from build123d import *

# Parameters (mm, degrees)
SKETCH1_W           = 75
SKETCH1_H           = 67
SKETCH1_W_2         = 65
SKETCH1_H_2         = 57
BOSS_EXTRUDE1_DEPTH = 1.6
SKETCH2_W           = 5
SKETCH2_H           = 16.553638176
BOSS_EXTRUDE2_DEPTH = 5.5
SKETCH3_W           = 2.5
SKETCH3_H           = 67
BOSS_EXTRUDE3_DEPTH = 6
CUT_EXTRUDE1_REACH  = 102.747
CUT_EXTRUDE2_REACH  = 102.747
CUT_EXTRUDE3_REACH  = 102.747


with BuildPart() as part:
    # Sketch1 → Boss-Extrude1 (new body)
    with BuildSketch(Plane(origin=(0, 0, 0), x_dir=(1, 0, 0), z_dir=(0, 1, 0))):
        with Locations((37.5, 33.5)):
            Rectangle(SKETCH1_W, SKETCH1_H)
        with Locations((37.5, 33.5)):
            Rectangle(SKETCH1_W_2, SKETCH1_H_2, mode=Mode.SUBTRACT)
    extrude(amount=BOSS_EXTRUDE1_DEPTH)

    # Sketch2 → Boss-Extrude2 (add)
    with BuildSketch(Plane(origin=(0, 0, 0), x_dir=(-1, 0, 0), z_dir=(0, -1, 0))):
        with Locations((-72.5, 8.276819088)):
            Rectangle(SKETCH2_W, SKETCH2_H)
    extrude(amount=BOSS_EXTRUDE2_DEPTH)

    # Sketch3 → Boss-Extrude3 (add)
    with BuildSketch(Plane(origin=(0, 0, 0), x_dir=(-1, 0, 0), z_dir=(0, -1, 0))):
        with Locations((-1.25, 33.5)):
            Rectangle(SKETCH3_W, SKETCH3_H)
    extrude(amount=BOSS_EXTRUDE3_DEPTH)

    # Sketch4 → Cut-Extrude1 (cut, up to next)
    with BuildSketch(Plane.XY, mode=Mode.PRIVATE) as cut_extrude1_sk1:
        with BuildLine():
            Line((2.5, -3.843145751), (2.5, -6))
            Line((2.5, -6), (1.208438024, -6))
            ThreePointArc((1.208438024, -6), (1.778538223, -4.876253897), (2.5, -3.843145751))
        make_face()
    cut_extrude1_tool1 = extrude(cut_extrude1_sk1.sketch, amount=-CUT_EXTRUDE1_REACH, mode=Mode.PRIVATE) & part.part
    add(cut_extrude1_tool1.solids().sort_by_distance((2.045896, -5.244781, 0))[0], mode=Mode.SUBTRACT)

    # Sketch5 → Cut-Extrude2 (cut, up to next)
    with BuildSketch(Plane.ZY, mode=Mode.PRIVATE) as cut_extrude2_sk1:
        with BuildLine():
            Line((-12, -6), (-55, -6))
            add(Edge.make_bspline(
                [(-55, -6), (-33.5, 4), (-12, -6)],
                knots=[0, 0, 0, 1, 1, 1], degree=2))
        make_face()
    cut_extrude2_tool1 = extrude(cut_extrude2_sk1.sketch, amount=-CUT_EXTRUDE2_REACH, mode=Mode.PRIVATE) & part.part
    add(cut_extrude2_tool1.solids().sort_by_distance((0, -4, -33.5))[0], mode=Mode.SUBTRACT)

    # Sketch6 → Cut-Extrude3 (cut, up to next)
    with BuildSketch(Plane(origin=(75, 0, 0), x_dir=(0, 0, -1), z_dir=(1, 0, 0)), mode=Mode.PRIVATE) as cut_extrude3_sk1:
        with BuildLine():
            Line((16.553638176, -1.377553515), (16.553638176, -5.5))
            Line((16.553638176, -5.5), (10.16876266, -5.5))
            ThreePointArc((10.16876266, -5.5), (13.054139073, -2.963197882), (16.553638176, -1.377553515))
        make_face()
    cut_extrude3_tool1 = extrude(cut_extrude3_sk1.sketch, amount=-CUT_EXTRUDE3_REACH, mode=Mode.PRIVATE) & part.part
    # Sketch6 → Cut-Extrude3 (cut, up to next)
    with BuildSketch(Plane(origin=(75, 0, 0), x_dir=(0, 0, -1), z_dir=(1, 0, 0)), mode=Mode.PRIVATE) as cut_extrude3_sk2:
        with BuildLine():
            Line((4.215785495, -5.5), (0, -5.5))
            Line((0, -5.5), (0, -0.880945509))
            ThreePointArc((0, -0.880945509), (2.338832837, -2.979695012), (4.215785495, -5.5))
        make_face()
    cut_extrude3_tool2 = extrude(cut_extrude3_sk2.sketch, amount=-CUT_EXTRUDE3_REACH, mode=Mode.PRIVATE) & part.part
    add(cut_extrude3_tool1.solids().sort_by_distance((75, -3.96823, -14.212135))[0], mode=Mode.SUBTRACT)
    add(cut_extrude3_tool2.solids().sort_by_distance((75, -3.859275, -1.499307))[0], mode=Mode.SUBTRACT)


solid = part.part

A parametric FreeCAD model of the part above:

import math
import FreeCAD as App
import Part
import Sketcher

V = App.Vector
Q = App.Units.Quantity

doc = App.newDocument("Part")
body = doc.addObject("PartDesign::Body", "Body")

# Sketch on XZ plane
sketch1 = body.newObject("Sketcher::SketchObject", "Sketch")
sketch1.AttachmentSupport = (doc.getObject("XZ_Plane"), [""])
sketch1.MapMode = "FlatFace"
sketch1.addGeometry(Part.LineSegment(V(0, -67, 0), V(0, 0, 0)), False)
sketch1.addGeometry(Part.LineSegment(V(0, 0, 0), V(75, 0, 0)), False)
sketch1.addGeometry(Part.LineSegment(V(75, 0, 0), V(75, -67, 0)), False)
sketch1.addGeometry(Part.LineSegment(V(75, -67, 0), V(0, -67, 0)), False)
sketch1.addGeometry(Part.LineSegment(V(70, -5, 0), V(5, -5, 0)), False)
sketch1.addGeometry(Part.LineSegment(V(5, -5, 0), V(5, -62, 0)), False)
sketch1.addGeometry(Part.LineSegment(V(5, -62, 0), V(70, -62, 0)), False)
sketch1.addGeometry(Part.LineSegment(V(70, -62, 0), V(70, -5, 0)), False)
sketch1.addConstraint(Sketcher.Constraint("Coincident", 0, 2, 1, 1))
sketch1.addConstraint(Sketcher.Constraint("Coincident", 1, 2, 2, 1))
sketch1.addConstraint(Sketcher.Constraint("Coincident", 2, 2, 3, 1))
sketch1.addConstraint(Sketcher.Constraint("Coincident", 3, 2, 0, 1))
sketch1.addConstraint(Sketcher.Constraint("Coincident", 4, 2, 5, 1))
sketch1.addConstraint(Sketcher.Constraint("Coincident", 5, 2, 6, 1))
sketch1.addConstraint(Sketcher.Constraint("Coincident", 6, 2, 7, 1))
sketch1.addConstraint(Sketcher.Constraint("Coincident", 7, 2, 4, 1))
sketch1.addConstraint(Sketcher.Constraint("Vertical", 0))
sketch1.addConstraint(Sketcher.Constraint("Horizontal", 1))
sketch1.addConstraint(Sketcher.Constraint("Vertical", 2))
sketch1.addConstraint(Sketcher.Constraint("Horizontal", 3))
sketch1.addConstraint(Sketcher.Constraint("Horizontal", 4))
sketch1.addConstraint(Sketcher.Constraint("Vertical", 5))
sketch1.addConstraint(Sketcher.Constraint("Horizontal", 6))
sketch1.addConstraint(Sketcher.Constraint("Vertical", 7))
sketch1.addConstraint(Sketcher.Constraint("Coincident", 0, 2, -1, 1))
sketch1.addConstraint(Sketcher.Constraint("DistanceX", 1, 1, 1, 2, Q("75 mm")))
sketch1.addConstraint(Sketcher.Constraint("DistanceX", 4, 2, 4, 1, Q("65 mm")))
sketch1.addConstraint(Sketcher.Constraint("DistanceY", 0, 1, 0, 2, Q("67 mm")))
sketch1.addConstraint(Sketcher.Constraint("DistanceY", 5, 2, 5, 1, Q("57 mm")))
sketch1.addConstraint(Sketcher.Constraint("DistanceX", -1, 1, 4, 2, Q("5 mm")))
sketch1.addConstraint(Sketcher.Constraint("DistanceY", 4, 2, -1, 1, Q("5 mm")))
pad1 = body.newObject("PartDesign::Pad", "Pad")
pad1.Profile = sketch1
pad1.Length = 1.6
pad1.Reversed = True

# Sketch on XZ plane
sketch2 = body.newObject("Sketcher::SketchObject", "Sketch001")
sketch2.AttachmentSupport = (doc.getObject("XZ_Plane"), [""])
sketch2.MapMode = "FlatFace"
sketch2.addGeometry(Part.LineSegment(V(75, -16.553638, 0), V(75, 0, 0)), False)
sketch2.addGeometry(Part.LineSegment(V(75, 0, 0), V(70, 0, 0)), False)
sketch2.addGeometry(Part.LineSegment(V(70, 0, 0), V(70, -16.553638, 0)), False)
sketch2.addGeometry(Part.LineSegment(V(70, -16.553638, 0), V(75, -16.553638, 0)), False)
sketch2.addConstraint(Sketcher.Constraint("Coincident", 0, 2, 1, 1))
sketch2.addConstraint(Sketcher.Constraint("Coincident", 1, 2, 2, 1))
sketch2.addConstraint(Sketcher.Constraint("Coincident", 2, 2, 3, 1))
sketch2.addConstraint(Sketcher.Constraint("Coincident", 3, 2, 0, 1))
sketch2.addConstraint(Sketcher.Constraint("Vertical", 0))
sketch2.addConstraint(Sketcher.Constraint("Horizontal", 1))
sketch2.addConstraint(Sketcher.Constraint("Vertical", 2))
sketch2.addConstraint(Sketcher.Constraint("Horizontal", 3))
sketch2.addConstraint(Sketcher.Constraint("PointOnObject", 0, 2, -1))
sketch2.addConstraint(Sketcher.Constraint("DistanceX", 1, 2, 1, 1, Q("5 mm")))
sketch2.addConstraint(Sketcher.Constraint("DistanceX", -1, 1, 0, 2, Q("75 mm")))
sketch2.addConstraint(Sketcher.Constraint("DistanceY", 0, 1, 0, 2, Q("16.553638 mm")))
pad2 = body.newObject("PartDesign::Pad", "Pad001")
pad2.Profile = sketch2
pad2.Length = 5.5

# Sketch on XZ plane
sketch3 = body.newObject("Sketcher::SketchObject", "Sketch002")
sketch3.AttachmentSupport = (doc.getObject("XZ_Plane"), [""])
sketch3.MapMode = "FlatFace"
sketch3.addGeometry(Part.LineSegment(V(2.5, -67, 0), V(2.5, 0, 0)), False)
sketch3.addGeometry(Part.LineSegment(V(2.5, 0, 0), V(0, 0, 0)), False)
sketch3.addGeometry(Part.LineSegment(V(0, 0, 0), V(0, -67, 0)), False)
sketch3.addGeometry(Part.LineSegment(V(0, -67, 0), V(2.5, -67, 0)), False)
sketch3.addConstraint(Sketcher.Constraint("Coincident", 0, 2, 1, 1))
sketch3.addConstraint(Sketcher.Constraint("Coincident", 1, 2, 2, 1))
sketch3.addConstraint(Sketcher.Constraint("Coincident", 2, 2, 3, 1))
sketch3.addConstraint(Sketcher.Constraint("Coincident", 3, 2, 0, 1))
sketch3.addConstraint(Sketcher.Constraint("Vertical", 0))
sketch3.addConstraint(Sketcher.Constraint("Horizontal", 1))
sketch3.addConstraint(Sketcher.Constraint("Vertical", 2))
sketch3.addConstraint(Sketcher.Constraint("Horizontal", 3))
sketch3.addConstraint(Sketcher.Constraint("Coincident", 1, 2, -1, 1))
sketch3.addConstraint(Sketcher.Constraint("DistanceY", 0, 1, 0, 2, Q("67 mm")))
sketch3.addConstraint(Sketcher.Constraint("DistanceX", 1, 2, 1, 1, Q("2.5 mm")))
pad3 = body.newObject("PartDesign::Pad", "Pad002")
pad3.Profile = sketch3
pad3.Length = 6

# Sketch on XY plane
sketch4 = body.newObject("Sketcher::SketchObject", "Sketch003")
sketch4.AttachmentSupport = (doc.getObject("XY_Plane"), [""])
sketch4.MapMode = "FlatFace"
sketch4.addGeometry(Part.LineSegment(V(2.5, -6, 0), V(2.5, -3.843146, 0)), False)
sketch4.addGeometry(Part.ArcOfCircle(Part.Circle(V(9.5, -9.5, 0), V(0, 0, 1), 9), math.radians(141.057559), math.radians(157.11462)), False)
sketch4.addGeometry(Part.LineSegment(V(1.208438, -6, 0), V(2.5, -6, 0)), False)
sketch4.addConstraint(Sketcher.Constraint("Coincident", 0, 2, 1, 1))
sketch4.addConstraint(Sketcher.Constraint("Coincident", 1, 2, 2, 1))
sketch4.addConstraint(Sketcher.Constraint("Coincident", 2, 2, 0, 1))
sketch4.addConstraint(Sketcher.Constraint("Vertical", 0))
sketch4.addConstraint(Sketcher.Constraint("Horizontal", 2))
sketch4.addConstraint(Sketcher.Constraint("Radius", 1, Q("9 mm")))
sketch4.addConstraint(Sketcher.Constraint("DistanceY", 1, 2, -1, 1, Q("6 mm")))
sketch4.addConstraint(Sketcher.Constraint("DistanceX", 0, 2, 1, 3, Q("7 mm")))
sketch4.addConstraint(Sketcher.Constraint("DistanceX", -1, 1, 1, 3, Q("9.5 mm")))
sketch4.addConstraint(Sketcher.Constraint("DistanceY", 1, 3, -1, 1, Q("9.5 mm")))
pocket1 = body.newObject("PartDesign::Pocket", "Pocket")
pocket1.Profile = sketch4
pocket1.Type = "UpToFirst"

# Sketch on YZ plane
sketch5 = body.newObject("Sketcher::SketchObject", "Sketch004")
sketch5.AttachmentSupport = (doc.getObject("YZ_Plane"), [""])
sketch5.MapMode = "FlatFace"
sketch5.addGeometry(Part.LineSegment(V(-6, -55, 0), V(-6, -12, 0)), False)
sketch5.addGeometry(Part.BSplineCurve([V(-6, -55, 0), V(4, -33.5, 0), V(-6, -12, 0)], [3, 3], [0, 1], False, 2, [1, 1, 1], False), False)
sketch5.addConstraint(Sketcher.Constraint("Block", 1))
sketch5.addConstraint(Sketcher.Constraint("Coincident", 0, 1, 1, 1))
sketch5.addConstraint(Sketcher.Constraint("Coincident", 1, 2, 0, 2))
pocket2 = body.newObject("PartDesign::Pocket", "Pocket001")
pocket2.Profile = sketch5
pocket2.Length = 2.5
pocket2.Reversed = True

# Sketch on YZ plane
sketch6 = body.newObject("Sketcher::SketchObject", "Sketch005")
sketch6.AttachmentSupport = (doc.getObject("YZ_Plane"), [""])
sketch6.MapMode = "FlatFace"
sketch6.AttachmentOffset = App.Placement(V(0, 0, 75), App.Rotation())
sketch6.addGeometry(Part.LineSegment(V(-5.5, -16.553638, 0), V(-1.377554, -16.553638, 0)), False)
sketch6.addGeometry(Part.ArcOfCircle(Part.Circle(V(-13.915991, -20.125899, 0), V(0, 0, 1), 13.037387), math.radians(15.902504), math.radians(49.794767)), False)
sketch6.addGeometry(Part.LineSegment(V(-5.5, -10.168763, 0), V(-5.5, -16.553638, 0)), False)
sketch6.addConstraint(Sketcher.Constraint("Coincident", 0, 2, 1, 1))
sketch6.addConstraint(Sketcher.Constraint("Coincident", 1, 2, 2, 1))
sketch6.addConstraint(Sketcher.Constraint("Coincident", 2, 2, 0, 1))
sketch6.addConstraint(Sketcher.Constraint("Horizontal", 0))
sketch6.addConstraint(Sketcher.Constraint("Vertical", 2))
sketch6.addConstraint(Sketcher.Constraint("DistanceX", 1, 2, -1, 1, Q("5.5 mm")))
sketch6.addConstraint(Sketcher.Constraint("Radius", 1, Q("13.037387 mm")))
sketch6.addConstraint(Sketcher.Constraint("DistanceY", 1, 3, -1, 1, Q("20.125899 mm")))
sketch6.addConstraint(Sketcher.Constraint("DistanceX", 0, 1, 0, 2, Q("4.122446 mm")))
sketch6.addConstraint(Sketcher.Constraint("DistanceY", 2, 2, 2, 1, Q("6.384876 mm")))
pocket3 = body.newObject("PartDesign::Pocket", "Pocket002")
pocket3.Profile = sketch6
pocket3.Type = "UpToFirst"

# Sketch on YZ plane
sketch7 = body.newObject("Sketcher::SketchObject", "Sketch006")
sketch7.AttachmentSupport = (doc.getObject("YZ_Plane"), [""])
sketch7.MapMode = "FlatFace"
sketch7.AttachmentOffset = App.Placement(V(0, 0, 75), App.Rotation())
sketch7.addGeometry(Part.LineSegment(V(-5.5, 0, 0), V(-5.5, -4.215785, 0)), False)
sketch7.addGeometry(Part.ArcOfCircle(Part.Circle(V(-13.625124, 9.324905, 0), V(0, 0, 1), 15.791388), math.radians(-59.034035), math.radians(-36.192904)), False)
sketch7.addGeometry(Part.LineSegment(V(-0.880946, 0, 0), V(-5.5, 0, 0)), False)
sketch7.addConstraint(Sketcher.Constraint("Coincident", 0, 2, 1, 1))
sketch7.addConstraint(Sketcher.Constraint("Coincident", 1, 2, 2, 1))
sketch7.addConstraint(Sketcher.Constraint("Coincident", 2, 2, 0, 1))
sketch7.addConstraint(Sketcher.Constraint("Vertical", 0))
sketch7.addConstraint(Sketcher.Constraint("Horizontal", 2))
sketch7.addConstraint(Sketcher.Constraint("PointOnObject", 1, 2, -1))
sketch7.addConstraint(Sketcher.Constraint("DistanceX", 0, 2, -1, 1, Q("5.5 mm")))
sketch7.addConstraint(Sketcher.Constraint("Radius", 1, Q("15.791388 mm")))
sketch7.addConstraint(Sketcher.Constraint("DistanceX", 2, 2, 2, 1, Q("4.619054 mm")))
sketch7.addConstraint(Sketcher.Constraint("DistanceY", 0, 2, 0, 1, Q("4.215785 mm")))
pocket4 = body.newObject("PartDesign::Pocket", "Pocket003")
pocket4.Profile = sketch7
pocket4.Type = "UpToFirst"

doc.recompute()
